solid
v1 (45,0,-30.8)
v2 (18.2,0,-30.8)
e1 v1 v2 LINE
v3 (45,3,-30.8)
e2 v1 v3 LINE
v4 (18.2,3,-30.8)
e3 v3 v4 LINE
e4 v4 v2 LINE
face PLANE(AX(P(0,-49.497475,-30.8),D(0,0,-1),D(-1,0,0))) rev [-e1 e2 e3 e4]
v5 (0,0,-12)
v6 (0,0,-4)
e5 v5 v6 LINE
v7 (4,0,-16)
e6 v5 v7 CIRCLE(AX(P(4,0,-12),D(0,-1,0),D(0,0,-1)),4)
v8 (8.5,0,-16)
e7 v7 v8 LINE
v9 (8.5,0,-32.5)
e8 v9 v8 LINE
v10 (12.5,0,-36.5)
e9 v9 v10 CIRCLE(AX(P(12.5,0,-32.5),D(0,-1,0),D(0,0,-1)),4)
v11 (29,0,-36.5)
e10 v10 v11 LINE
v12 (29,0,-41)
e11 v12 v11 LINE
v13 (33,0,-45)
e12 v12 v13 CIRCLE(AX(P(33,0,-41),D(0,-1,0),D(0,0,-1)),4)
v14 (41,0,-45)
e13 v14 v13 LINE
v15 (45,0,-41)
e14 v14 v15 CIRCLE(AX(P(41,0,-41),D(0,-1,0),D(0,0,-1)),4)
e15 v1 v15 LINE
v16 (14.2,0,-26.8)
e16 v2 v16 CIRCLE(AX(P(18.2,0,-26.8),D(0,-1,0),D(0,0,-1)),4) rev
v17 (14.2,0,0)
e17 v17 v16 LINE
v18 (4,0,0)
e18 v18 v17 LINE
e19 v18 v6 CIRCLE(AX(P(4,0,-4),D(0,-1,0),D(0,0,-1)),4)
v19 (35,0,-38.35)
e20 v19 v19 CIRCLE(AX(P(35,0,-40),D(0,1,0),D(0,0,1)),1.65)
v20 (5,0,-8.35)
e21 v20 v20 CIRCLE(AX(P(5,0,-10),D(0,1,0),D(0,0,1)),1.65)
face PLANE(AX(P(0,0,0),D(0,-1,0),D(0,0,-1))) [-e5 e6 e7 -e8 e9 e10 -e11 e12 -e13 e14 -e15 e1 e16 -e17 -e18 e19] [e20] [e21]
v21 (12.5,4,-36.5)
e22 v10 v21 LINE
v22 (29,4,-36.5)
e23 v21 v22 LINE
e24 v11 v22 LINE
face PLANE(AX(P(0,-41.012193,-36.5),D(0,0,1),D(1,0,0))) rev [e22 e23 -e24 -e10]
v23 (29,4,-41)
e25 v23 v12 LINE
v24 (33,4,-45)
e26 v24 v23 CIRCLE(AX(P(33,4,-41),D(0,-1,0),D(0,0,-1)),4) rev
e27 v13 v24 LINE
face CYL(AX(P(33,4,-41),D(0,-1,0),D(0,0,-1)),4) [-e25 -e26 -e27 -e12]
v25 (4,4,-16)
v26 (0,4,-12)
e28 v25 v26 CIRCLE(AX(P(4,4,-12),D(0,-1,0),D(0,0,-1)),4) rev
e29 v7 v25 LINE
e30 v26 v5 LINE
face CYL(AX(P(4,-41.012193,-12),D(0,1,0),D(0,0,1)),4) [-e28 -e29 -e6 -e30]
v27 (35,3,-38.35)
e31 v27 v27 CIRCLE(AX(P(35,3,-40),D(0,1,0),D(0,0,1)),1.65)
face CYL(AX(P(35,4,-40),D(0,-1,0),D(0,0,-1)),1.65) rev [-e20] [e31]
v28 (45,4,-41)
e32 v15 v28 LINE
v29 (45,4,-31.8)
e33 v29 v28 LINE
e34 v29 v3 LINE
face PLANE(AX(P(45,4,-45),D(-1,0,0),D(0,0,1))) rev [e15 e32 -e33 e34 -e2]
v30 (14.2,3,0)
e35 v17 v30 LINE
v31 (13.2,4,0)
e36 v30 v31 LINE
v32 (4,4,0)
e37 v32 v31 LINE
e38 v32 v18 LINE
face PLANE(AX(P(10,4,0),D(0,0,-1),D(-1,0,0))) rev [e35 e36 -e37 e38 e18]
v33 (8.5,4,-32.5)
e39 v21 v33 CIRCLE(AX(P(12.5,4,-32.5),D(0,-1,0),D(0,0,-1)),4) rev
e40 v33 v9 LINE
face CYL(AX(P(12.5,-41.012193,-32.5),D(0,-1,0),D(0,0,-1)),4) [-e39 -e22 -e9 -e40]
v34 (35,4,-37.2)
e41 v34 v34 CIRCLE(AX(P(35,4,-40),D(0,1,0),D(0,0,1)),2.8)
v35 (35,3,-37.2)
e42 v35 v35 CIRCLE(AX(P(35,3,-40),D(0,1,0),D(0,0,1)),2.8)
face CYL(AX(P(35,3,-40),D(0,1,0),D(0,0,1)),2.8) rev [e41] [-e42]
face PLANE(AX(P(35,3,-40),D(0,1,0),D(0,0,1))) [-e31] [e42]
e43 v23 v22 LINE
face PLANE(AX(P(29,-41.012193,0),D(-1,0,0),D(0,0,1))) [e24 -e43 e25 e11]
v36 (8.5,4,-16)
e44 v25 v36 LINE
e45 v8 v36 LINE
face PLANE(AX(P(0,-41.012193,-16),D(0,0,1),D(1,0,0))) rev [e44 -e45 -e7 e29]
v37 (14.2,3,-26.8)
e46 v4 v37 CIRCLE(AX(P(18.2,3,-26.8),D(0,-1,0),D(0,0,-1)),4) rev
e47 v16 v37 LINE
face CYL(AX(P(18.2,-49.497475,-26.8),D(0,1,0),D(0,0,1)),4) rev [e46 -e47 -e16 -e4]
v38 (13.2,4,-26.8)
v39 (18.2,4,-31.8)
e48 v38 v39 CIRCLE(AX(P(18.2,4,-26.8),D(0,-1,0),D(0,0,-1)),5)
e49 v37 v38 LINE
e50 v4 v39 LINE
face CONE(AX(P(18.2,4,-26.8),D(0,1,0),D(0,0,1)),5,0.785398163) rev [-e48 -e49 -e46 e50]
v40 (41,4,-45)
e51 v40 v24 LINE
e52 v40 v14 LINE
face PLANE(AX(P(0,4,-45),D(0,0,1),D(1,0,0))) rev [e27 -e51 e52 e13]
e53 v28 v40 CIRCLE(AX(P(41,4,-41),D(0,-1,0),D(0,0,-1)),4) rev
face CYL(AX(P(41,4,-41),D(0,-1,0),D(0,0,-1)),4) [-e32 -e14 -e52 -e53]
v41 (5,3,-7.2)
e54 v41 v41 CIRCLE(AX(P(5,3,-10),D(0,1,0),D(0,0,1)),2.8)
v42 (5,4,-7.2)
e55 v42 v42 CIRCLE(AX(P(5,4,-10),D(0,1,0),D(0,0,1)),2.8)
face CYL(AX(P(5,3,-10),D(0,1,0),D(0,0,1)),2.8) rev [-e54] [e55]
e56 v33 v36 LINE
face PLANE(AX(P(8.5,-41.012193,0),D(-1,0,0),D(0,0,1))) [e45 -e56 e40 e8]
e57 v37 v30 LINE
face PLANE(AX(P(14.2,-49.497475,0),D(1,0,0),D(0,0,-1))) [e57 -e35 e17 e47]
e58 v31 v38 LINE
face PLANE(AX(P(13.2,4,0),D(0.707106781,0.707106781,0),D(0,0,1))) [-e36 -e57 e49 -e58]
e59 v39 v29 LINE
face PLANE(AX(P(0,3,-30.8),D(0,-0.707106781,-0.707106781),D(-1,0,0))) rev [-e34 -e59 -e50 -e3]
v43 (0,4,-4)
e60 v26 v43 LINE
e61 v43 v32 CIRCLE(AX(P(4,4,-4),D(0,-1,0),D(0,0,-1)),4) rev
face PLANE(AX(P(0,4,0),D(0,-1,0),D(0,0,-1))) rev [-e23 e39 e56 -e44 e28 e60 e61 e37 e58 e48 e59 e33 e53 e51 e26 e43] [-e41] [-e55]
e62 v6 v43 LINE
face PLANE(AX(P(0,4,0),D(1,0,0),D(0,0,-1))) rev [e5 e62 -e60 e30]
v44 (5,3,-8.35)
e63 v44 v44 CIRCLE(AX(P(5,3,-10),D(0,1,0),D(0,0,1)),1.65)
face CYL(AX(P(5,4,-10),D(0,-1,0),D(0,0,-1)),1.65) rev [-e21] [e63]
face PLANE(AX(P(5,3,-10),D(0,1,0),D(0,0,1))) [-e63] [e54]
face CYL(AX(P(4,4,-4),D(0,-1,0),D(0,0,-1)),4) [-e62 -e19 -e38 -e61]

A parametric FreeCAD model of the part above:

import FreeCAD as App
import Part
import Sketcher

V = App.Vector


def edges_at(feature, points):
    """Names of the edges that pass closest to the given points."""
    edges = feature.Shape.Edges
    near = lambda p: min(range(len(edges)), key=lambda i: edges[i].distToShape(Part.Vertex(*p))[0])
    return sorted({f"Edge{near(p) + 1}" for p in points})

doc = App.newDocument("Part")
body = doc.addObject("PartDesign::Body", "Body")

# Sketch on XZ plane
sketch1 = doc.addObject("Sketcher::SketchObject", "Sketch")
body.addObject(sketch1)
sketch1.AttachmentSupport = (doc.XZ_Plane, [""])
sketch1.MapMode = "FlatFace"
sketch1.addGeometry(Part.LineSegment(V(0, -45, 0), V(0, 0, 0)), False)
sketch1.addGeometry(Part.LineSegment(V(0, 0, 0), V(10, 0, 0)), False)
sketch1.addGeometry(Part.LineSegment(V(10, 0, 0), V(10, -35, 0)), False)
sketch1.addGeometry(Part.LineSegment(V(10, -35, 0), V(45, -35, 0)), False)
sketch1.addGeometry(Part.LineSegment(V(45, -35, 0), V(45, -45, 0)), False)
sketch1.addGeometry(Part.LineSegment(V(45, -45, 0), V(0, -45, 0)), False)
sketch1.addGeometry(Part.Circle(V(5, -10, 0), V(0, 0, 1), 1.6), False)
sketch1.addGeometry(Part.Circle(V(35, -40, 0), V(0, 0, 1), 1.6), False)
sketch1.addConstraint(Sketcher.Constraint("Coincident", 0, 2, 1, 1))
sketch1.addConstraint(Sketcher.Constraint("Coincident", 1, 2, 2, 1))
sketch1.addConstraint(Sketcher.Constraint("Coincident", 2, 2, 3, 1))
sketch1.addConstraint(Sketcher.Constraint("Coincident", 3, 2, 4, 1))
sketch1.addConstraint(Sketcher.Constraint("Coincident", 4, 2, 5, 1))
sketch1.addConstraint(Sketcher.Constraint("Coincident", 5, 2, 0, 1))
sketch1.addConstraint(Sketcher.Constraint("Vertical", 0))
sketch1.addConstraint(Sketcher.Constraint("Horizontal", 1))
sketch1.addConstraint(Sketcher.Constraint("Vertical", 2))
sketch1.addConstraint(Sketcher.Constraint("Horizontal", 3))
sketch1.addConstraint(Sketcher.Constraint("Vertical", 4))
sketch1.addConstraint(Sketcher.Constraint("Horizontal", 5))
sketch1.addConstraint(Sketcher.Constraint("Coincident", 0, 2, -1, 1))
sketch1.addConstraint(Sketcher.Constraint("Equal", 6, 7))
sketch1.addConstraint(Sketcher.Constraint("Equal", 5, 0))
sketch1.addConstraint(Sketcher.Constraint("Equal", 3, 2))
sketch1.addConstraint(Sketcher.Constraint("Diameter", 6, 3.3))
sketch1.addConstraint(Sketcher.Constraint("DistanceX", 1, 1, 1, 2, 10.0))
sketch1.addConstraint(Sketcher.Constraint("DistanceX", 3, 1, 3, 2, 35.0))
sketch1.addConstraint(Sketcher.Constraint("DistanceX", -1, 1, 6, 3, 5.0))
sketch1.addConstraint(Sketcher.Constraint("DistanceY", 6, 3, -1, 1, 10.0))
sketch1.addConstraint(Sketcher.Constraint("DistanceX", -1, 1, 7, 3, 35.0))
sketch1.addConstraint(Sketcher.Constraint("DistanceY", 7, 3, -1, 1, 40.0))
pad1 = doc.addObject("PartDesign::Pad", "Pad")
body.addObject(pad1)
pad1.Profile = sketch1
pad1.Length = 4
pad1.Reversed = True

# Sketch on XZ plane
sketch2 = doc.addObject("Sketcher::SketchObject", "Sketch001")
body.addObject(sketch2)
sketch2.AttachmentSupport = (doc.XZ_Plane, [""])
sketch2.MapMode = "FlatFace"
sketch2.AttachmentOffset = App.Placement(V(0, 0, -4), App.Rotation())
sketch2.addGeometry(Part.LineSegment(V(14.2, -30.8, 0), V(45, -30.8, 0)), False)
sketch2.addGeometry(Part.LineSegment(V(45, -30.8, 0), V(45, -35, 0)), False)
sketch2.addGeometry(Part.LineSegment(V(45, -35, 0), V(10, -35, 0)), False)
sketch2.addGeometry(Part.LineSegment(V(10, -35, 0), V(10, 0, 0)), False)
sketch2.addGeometry(Part.LineSegment(V(10, 0, 0), V(14.2, 0, 0)), False)
sketch2.addGeometry(Part.LineSegment(V(14.2, 0, 0), V(14.2, -30.8, 0)), False)
sketch2.addConstraint(Sketcher.Constraint("Coincident", 0, 2, 1, 1))
sketch2.addConstraint(Sketcher.Constraint("Coincident", 1, 2, 2, 1))
sketch2.addConstraint(Sketcher.Constraint("Coincident", 2, 2, 3, 1))
sketch2.addConstraint(Sketcher.Constraint("Coincident", 3, 2, 4, 1))
sketch2.addConstraint(Sketcher.Constraint("Coincident", 4, 2, 5, 1))
sketch2.addConstraint(Sketcher.Constraint("Coincident", 5, 2, 0, 1))
sketch2.addConstraint(Sketcher.Constraint("Horizontal", 0))
sketch2.addConstraint(Sketcher.Constraint("Vertical", 1))
sketch2.addConstraint(Sketcher.Constraint("Horizontal", 2))
sketch2.addConstraint(Sketcher.Constraint("Vertical", 3))
sketch2.addConstraint(Sketcher.Constraint("Horizontal", 4))
sketch2.addConstraint(Sketcher.Constraint("Vertical", 5))
sketch2.addConstraint(Sketcher.Constraint("PointOnObject", 3, 2, -1))
sketch2.addConstraint(Sketcher.Constraint("Equal", 4, 1))
sketch2.addConstraint(Sketcher.Constraint("Equal", 2, 3))
sketch2.addConstraint(Sketcher.Constraint("DistanceX", 2, 2, 2, 1, 35.0))
sketch2.addConstraint(Sketcher.Constraint("DistanceX", 0, 1, 0, 2, 30.8))
sketch2.addConstraint(Sketcher.Constraint("DistanceX", -1, 1, 0, 2, 45.0))
pad2 = doc.addObject("PartDesign::Pad", "Pad001")
body.addObject(pad2)
pad2.Profile = sketch2
pad2.Length = 4

# Sketch on XZ plane
sketch3 = doc.addObject("Sketcher::SketchObject", "Sketch002")
body.addObject(sketch3)
sketch3.AttachmentSupport = (doc.XZ_Plane, [""])
sketch3.MapMode = "FlatFace"
sketch3.AttachmentOffset = App.Placement(V(0, 0, -4), App.Rotation())
sketch3.addGeometry(Part.LineSegment(V(29, -45, 0), V(0, -45, 0)), False)
sketch3.addGeometry(Part.LineSegment(V(0, -45, 0), V(0, -16, 0)), False)
sketch3.addGeometry(Part.LineSegment(V(0, -16, 0), V(8, -16, 0)), False)
sketch3.addGeometry(Part.LineSegment(V(8, -16, 0), V(8, -36, 0)), False)
sketch3.addGeometry(Part.LineSegment(V(8, -36, 0), V(29, -36, 0)), False)
sketch3.addGeometry(Part.LineSegment(V(29, -36, 0), V(29, -45, 0)), False)
sketch3.addConstraint(Sketcher.Constraint("Coincident", 0, 2, 1, 1))
sketch3.addConstraint(Sketcher.Constraint("Coincident", 1, 2, 2, 1))
sketch3.addConstraint(Sketcher.Constraint("Coincident", 2, 2, 3, 1))
sketch3.addConstraint(Sketcher.Constraint("Coincident", 3, 2, 4, 1))
sketch3.addConstraint(Sketcher.Constraint("Coincident", 4, 2, 5, 1))
sketch3.addConstraint(Sketcher.Constraint("Coincident", 5, 2, 0, 1))
sketch3.addConstraint(Sketcher.Constraint("Horizontal", 0))
sketch3.addConstraint(Sketcher.Constraint("Vertical", 1))
sketch3.addConstraint(Sketcher.Constraint("Horizontal", 2))
sketch3.addConstraint(Sketcher.Constraint("Vertical", 3))
sketch3.addConstraint(Sketcher.Constraint("Horizontal", 4))
sketch3.addConstraint(Sketcher.Constraint("Vertical", 5))
sketch3.addConstraint(Sketcher.Constraint("PointOnObject", 0, 2, -2))
sketch3.addConstraint(Sketcher.Constraint("Equal", 0, 1))
sketch3.addConstraint(Sketcher.Constraint("Equal", 4, 3))
sketch3.addConstraint(Sketcher.Constraint("DistanceX", 0, 2, 0, 1, 29.0))
sketch3.addConstraint(Sketcher.Constraint("DistanceX", 2, 1, 2, 2, 8.5))
sketch3.addConstraint(Sketcher.Constraint("DistanceY", 0, 2, -1, 1, 45.0))
pocket1 = doc.addObject("PartDesign::Pocket", "Pocket")
body.addObject(pocket1)
pocket1.Profile = sketch3
pocket1.Length = 4
pocket1.Reversed = True
doc.recompute()

fillet = doc.addObject("PartDesign::Fillet", "Fillet")
body.addObject(fillet)
fillet.Base = (pocket1, edges_at(pocket1, [(14.2, 2, -30.8), (8.5, 2, -36.5)]))
fillet.Radius = 4
doc.recompute()

fillet2 = doc.addObject("PartDesign::Fillet", "Fillet001")
body.addObject(fillet2)
fillet2.Base = (fillet, edges_at(fillet, [
    (0, 2, 0),
    (45, 2, -45),
    (0, 2, -16),
    (29, 2, -45),
]))
fillet2.Radius = 4
doc.recompute()

chamfer = doc.addObject("PartDesign::Chamfer", "Chamfer")
body.addObject(chamfer)
chamfer.Base = (fillet2, edges_at(fillet2, [(31.6, 4, -30.8), (14.2, 4, -13.4), (15.372, 4, -29.628)]))
chamfer.Size = 1

# Sketch on XZ plane
sketch4 = doc.addObject("Sketcher::SketchObject", "Sketch003")
body.addObject(sketch4)
sketch4.AttachmentSupport = (doc.XZ_Plane, [""])
sketch4.MapMode = "FlatFace"
sketch4.AttachmentOffset = App.Placement(V(0, 0, -4), App.Rotation())
sketch4.addGeometry(Part.Circle(V(35, -40, 0), V(0, 0, 1), 2.8), False)
sketch4.addGeometry(Part.Circle(V(5, -10, 0), V(0, 0, 1), 2.8), False)
sketch4.addConstraint(Sketcher.Constraint("Equal", 0, 1))
sketch4.addConstraint(Sketcher.Constraint("Diameter", 0, 5.6))
sketch4.addConstraint(Sketcher.Constraint("DistanceX", -1, 1, 0, 3, 35.0))
sketch4.addConstraint(Sketcher.Constraint("DistanceY", 0, 3, -1, 1, 40.0))
sketch4.addConstraint(Sketcher.Constraint("DistanceX", -1, 1, 1, 3, 5.0))
sketch4.addConstraint(Sketcher.Constraint("DistanceY", 1, 3, -1, 1, 10.0))
pocket2 = doc.addObject("PartDesign::Pocket", "Pocket001")
body.addObject(pocket2)
pocket2.Profile = sketch4
pocket2.Length = 1
pocket2.Reversed = True

doc.recompute()
